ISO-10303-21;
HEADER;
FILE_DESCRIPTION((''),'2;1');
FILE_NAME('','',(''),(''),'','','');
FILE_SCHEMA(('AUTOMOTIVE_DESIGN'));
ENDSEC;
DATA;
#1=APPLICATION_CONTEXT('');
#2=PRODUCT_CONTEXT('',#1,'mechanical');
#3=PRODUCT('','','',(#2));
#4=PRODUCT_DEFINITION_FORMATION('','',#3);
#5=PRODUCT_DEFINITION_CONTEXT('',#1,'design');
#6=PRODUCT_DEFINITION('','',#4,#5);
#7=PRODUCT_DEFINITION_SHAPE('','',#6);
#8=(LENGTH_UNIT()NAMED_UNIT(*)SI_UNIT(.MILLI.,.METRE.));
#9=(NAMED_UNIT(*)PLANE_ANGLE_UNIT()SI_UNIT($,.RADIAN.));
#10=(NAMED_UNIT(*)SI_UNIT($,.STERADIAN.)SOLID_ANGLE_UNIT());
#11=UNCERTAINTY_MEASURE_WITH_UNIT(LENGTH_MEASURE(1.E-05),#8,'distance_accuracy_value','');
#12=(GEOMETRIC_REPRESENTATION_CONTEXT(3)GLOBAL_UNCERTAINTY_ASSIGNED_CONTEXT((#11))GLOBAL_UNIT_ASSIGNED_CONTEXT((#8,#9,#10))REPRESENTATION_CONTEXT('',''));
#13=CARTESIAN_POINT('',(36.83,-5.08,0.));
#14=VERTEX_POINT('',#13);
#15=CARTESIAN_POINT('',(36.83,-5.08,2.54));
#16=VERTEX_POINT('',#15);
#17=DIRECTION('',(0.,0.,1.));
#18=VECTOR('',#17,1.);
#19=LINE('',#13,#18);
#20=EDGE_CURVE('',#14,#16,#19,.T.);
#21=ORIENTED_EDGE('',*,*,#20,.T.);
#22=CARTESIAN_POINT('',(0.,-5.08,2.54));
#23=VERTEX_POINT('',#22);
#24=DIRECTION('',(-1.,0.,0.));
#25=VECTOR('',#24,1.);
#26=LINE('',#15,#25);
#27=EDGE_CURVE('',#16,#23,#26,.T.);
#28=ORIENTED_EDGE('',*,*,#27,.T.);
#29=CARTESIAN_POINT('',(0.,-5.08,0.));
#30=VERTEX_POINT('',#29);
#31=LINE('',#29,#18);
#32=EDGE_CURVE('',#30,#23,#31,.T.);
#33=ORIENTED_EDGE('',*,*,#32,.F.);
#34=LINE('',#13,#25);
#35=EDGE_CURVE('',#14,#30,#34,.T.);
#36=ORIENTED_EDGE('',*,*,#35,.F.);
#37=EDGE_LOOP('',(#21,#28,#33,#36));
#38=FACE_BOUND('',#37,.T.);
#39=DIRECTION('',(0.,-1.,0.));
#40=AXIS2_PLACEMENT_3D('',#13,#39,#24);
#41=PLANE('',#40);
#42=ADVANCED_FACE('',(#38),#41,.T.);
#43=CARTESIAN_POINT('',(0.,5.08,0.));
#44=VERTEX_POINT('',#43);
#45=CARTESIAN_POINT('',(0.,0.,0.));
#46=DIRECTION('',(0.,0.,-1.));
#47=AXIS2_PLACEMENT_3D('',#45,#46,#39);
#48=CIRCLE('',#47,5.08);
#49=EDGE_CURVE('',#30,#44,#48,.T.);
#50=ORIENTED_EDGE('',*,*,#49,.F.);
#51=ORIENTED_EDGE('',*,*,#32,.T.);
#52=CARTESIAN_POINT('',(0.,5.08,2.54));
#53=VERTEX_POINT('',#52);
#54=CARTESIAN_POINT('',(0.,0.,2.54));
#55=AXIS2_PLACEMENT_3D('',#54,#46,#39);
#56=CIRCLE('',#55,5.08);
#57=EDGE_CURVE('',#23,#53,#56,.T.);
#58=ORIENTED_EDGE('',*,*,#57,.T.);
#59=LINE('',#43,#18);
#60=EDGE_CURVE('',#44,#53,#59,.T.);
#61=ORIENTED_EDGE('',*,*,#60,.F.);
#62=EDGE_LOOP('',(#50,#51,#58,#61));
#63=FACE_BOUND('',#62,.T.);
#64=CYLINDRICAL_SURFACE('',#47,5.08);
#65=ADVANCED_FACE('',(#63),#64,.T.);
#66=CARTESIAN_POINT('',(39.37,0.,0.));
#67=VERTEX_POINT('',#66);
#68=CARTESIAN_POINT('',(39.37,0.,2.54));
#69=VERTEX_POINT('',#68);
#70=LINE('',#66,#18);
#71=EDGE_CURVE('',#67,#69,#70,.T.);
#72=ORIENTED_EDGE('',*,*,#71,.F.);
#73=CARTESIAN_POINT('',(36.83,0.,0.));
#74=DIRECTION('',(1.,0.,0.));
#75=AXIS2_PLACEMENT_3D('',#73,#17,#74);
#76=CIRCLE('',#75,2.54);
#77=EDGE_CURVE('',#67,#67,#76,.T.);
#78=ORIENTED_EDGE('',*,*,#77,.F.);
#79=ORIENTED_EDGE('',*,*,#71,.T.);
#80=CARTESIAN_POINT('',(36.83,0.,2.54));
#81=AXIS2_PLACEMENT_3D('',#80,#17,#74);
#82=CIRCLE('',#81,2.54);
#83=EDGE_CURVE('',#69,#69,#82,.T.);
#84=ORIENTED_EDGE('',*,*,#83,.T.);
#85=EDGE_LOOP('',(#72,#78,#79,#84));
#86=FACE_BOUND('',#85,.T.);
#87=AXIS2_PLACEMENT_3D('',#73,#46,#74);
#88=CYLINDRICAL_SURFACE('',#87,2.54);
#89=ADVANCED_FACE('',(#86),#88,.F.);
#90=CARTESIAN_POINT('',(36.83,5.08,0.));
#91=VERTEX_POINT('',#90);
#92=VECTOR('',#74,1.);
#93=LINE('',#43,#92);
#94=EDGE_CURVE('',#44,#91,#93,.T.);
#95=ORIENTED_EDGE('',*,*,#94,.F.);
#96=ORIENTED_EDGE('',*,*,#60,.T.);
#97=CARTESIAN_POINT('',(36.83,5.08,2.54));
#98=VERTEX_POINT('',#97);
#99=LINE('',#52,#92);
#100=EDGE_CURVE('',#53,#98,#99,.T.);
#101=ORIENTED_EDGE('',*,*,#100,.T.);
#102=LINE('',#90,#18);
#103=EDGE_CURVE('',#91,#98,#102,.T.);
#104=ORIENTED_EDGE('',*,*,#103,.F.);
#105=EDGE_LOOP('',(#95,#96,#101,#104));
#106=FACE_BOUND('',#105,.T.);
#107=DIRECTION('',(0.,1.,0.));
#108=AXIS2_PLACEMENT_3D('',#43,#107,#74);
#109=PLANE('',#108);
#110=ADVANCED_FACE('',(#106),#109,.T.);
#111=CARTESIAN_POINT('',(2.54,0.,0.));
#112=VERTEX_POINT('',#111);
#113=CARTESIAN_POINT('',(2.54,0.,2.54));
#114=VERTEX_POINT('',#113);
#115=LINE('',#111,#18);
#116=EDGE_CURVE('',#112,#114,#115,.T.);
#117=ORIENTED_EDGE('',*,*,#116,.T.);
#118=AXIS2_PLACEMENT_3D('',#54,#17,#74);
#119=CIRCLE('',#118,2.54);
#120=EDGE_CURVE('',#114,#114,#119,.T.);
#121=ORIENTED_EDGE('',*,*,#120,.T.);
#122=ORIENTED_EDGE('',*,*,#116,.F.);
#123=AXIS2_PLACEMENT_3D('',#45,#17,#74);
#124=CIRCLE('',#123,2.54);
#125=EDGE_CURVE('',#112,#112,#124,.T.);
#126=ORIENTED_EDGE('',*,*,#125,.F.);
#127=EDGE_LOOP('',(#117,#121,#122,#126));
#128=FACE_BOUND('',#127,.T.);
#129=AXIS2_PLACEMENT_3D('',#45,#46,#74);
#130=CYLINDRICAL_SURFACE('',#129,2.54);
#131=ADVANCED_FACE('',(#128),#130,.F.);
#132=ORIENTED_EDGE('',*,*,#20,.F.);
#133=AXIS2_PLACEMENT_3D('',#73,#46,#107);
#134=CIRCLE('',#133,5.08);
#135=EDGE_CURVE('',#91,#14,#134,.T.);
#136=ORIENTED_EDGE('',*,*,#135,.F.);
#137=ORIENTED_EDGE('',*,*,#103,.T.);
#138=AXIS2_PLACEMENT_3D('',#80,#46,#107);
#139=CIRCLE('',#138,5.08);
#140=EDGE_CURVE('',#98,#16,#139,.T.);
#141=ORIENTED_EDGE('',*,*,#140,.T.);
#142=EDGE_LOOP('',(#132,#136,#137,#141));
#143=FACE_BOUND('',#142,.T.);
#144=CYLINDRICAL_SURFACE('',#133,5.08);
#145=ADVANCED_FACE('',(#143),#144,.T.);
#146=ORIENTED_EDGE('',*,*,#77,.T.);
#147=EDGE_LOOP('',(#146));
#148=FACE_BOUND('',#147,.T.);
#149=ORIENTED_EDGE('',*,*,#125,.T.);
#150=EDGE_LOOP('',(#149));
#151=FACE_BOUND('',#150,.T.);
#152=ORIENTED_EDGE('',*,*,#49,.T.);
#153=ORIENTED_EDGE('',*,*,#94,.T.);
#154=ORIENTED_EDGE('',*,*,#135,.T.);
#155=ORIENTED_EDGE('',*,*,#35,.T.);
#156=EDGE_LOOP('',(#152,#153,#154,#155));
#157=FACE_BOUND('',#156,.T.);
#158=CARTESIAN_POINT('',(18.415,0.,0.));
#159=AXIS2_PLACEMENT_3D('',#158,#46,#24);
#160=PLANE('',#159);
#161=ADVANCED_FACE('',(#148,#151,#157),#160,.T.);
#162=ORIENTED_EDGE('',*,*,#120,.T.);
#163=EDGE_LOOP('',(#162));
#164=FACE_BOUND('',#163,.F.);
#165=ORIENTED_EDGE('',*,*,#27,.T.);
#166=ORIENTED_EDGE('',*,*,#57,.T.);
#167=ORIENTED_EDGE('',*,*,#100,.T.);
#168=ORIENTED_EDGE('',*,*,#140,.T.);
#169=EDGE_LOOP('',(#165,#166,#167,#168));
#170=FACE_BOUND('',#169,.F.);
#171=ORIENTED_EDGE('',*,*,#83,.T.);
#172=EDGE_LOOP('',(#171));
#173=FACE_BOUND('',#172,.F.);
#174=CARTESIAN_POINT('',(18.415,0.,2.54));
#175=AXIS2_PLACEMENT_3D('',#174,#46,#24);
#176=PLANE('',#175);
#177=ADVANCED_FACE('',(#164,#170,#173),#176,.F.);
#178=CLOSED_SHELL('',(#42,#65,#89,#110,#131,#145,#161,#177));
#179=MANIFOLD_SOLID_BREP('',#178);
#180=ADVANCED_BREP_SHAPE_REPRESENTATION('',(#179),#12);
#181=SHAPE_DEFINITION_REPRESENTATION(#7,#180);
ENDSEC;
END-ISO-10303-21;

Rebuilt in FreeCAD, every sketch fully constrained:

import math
import FreeCAD as App
import Part
import Sketcher
Q = App.Units.Quantity

doc = App.newDocument("Part")
body = doc.addObject("PartDesign::Body", "Body")

# Sketch on XY plane
sketch1 = doc.addObject("Sketcher::SketchObject", "Sketch")
body.addObject(sketch1)
sketch1.AttachmentSupport = (doc.XY_Plane, [""])
sketch1.MapMode = "FlatFace"
sketch1.addGeometry(Part.LineSegment(App.Vector(36.8, 5.1, 0), App.Vector(0, 5.1, 0)), False)
sketch1.addGeometry(Part.ArcOfCircle(Part.Circle(App.Vector(0, 0, 0), App.Vector(0, 0, 1), 5.1), math.radians(90), math.radians(270)), False)
sketch1.addGeometry(Part.LineSegment(App.Vector(0, -5.1, 0), App.Vector(36.8, -5.1, 0)), False)
sketch1.addGeometry(Part.ArcOfCircle(Part.Circle(App.Vector(36.8, 0, 0), App.Vector(0, 0, 1), 5.1), math.radians(-90), math.radians(90)), False)
sketch1.addGeometry(Part.Circle(App.Vector(36.8, 0, 0), App.Vector(0, 0, 1), 2.5), False)
sketch1.addGeometry(Part.Circle(App.Vector(0, 0, 0), App.Vector(0, 0, 1), 2.5), False)
sketch1.addConstraint(Sketcher.Constraint("Tangent", 0, 2, 1, 1))
sketch1.addConstraint(Sketcher.Constraint("Tangent", 1, 2, 2, 1))
sketch1.addConstraint(Sketcher.Constraint("Tangent", 2, 2, 3, 1))
sketch1.addConstraint(Sketcher.Constraint("Tangent", 3, 2, 0, 1))
sketch1.addConstraint(Sketcher.Constraint("Horizontal", 0))
sketch1.addConstraint(Sketcher.Constraint("Horizontal", 2))
sketch1.addConstraint(Sketcher.Constraint("Coincident", 1, 3, -1, 1))
sketch1.addConstraint(Sketcher.Constraint("Coincident", 5, 3, -1, 1))
sketch1.addConstraint(Sketcher.Constraint("Coincident", 4, 3, 3, 3))
sketch1.addConstraint(Sketcher.Constraint("Equal", 4, 5))
sketch1.addConstraint(Sketcher.Constraint("Diameter", 4, Q("0.2 in")))
sketch1.addConstraint(Sketcher.Constraint("Radius", 1, Q("0.2 in")))
sketch1.addConstraint(Sketcher.Constraint("DistanceX", 0, 2, 0, 1, Q("1.45 in")))
pad1 = doc.addObject("PartDesign::Pad", "Pad")
body.addObject(pad1)
pad1.Profile = sketch1
pad1.Length = Q("0.1 in")

doc.recompute()
